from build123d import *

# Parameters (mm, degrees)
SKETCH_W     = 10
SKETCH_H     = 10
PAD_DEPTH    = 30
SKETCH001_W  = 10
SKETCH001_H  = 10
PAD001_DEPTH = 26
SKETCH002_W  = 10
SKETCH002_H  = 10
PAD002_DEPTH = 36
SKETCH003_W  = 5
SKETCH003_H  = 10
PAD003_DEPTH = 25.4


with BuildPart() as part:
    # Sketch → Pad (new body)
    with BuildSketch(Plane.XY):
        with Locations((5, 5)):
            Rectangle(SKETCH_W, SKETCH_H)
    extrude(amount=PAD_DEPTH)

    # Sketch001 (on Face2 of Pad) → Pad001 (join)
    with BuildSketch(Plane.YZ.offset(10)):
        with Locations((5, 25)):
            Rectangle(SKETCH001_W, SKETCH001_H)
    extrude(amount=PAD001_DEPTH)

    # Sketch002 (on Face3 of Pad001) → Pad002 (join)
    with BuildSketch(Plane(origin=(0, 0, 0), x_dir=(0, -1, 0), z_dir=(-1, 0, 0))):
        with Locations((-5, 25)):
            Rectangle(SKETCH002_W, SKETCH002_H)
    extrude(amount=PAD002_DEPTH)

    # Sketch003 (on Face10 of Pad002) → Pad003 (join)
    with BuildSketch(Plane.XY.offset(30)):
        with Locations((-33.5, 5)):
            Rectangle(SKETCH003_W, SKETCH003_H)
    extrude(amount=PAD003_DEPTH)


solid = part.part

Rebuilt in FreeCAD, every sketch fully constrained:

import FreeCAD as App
import Part
import Sketcher
from FreeCAD import Vector

doc = App.newDocument("Part")
body = doc.addObject("PartDesign::Body", "Body")

sketch1 = body.newObject("Sketcher::SketchObject", "Sketch")
sketch1.AttachmentSupport = (doc.getObject("XY_Plane"), [""])
sketch1.MapMode = "FlatFace"
sketch1.addGeometry(Part.LineSegment(Vector(0, 10, 0), Vector(0, 0, 0)), False)
sketch1.addGeometry(Part.LineSegment(Vector(0, 0, 0), Vector(10, 0, 0)), False)
sketch1.addGeometry(Part.LineSegment(Vector(10, 0, 0), Vector(10, 10, 0)), False)
sketch1.addGeometry(Part.LineSegment(Vector(10, 10, 0), Vector(0, 10, 0)), False)
sketch1.addConstraint(Sketcher.Constraint("Coincident", 0, 2, 1, 1))
sketch1.addConstraint(Sketcher.Constraint("Coincident", 1, 2, 2, 1))
sketch1.addConstraint(Sketcher.Constraint("Coincident", 2, 2, 3, 1))
sketch1.addConstraint(Sketcher.Constraint("Coincident", 3, 2, 0, 1))
sketch1.addConstraint(Sketcher.Constraint("Vertical", 0))
sketch1.addConstraint(Sketcher.Constraint("Horizontal", 1))
sketch1.addConstraint(Sketcher.Constraint("Vertical", 2))
sketch1.addConstraint(Sketcher.Constraint("Horizontal", 3))
sketch1.addConstraint(Sketcher.Constraint("Coincident", 0, 2, -1, 1))
sketch1.addConstraint(Sketcher.Constraint("Equal", 3, 0))
sketch1.addConstraint(Sketcher.Constraint("DistanceX", 1, 1, 1, 2, 10.0))
pad1 = body.newObject("PartDesign::Pad", "Pad")
pad1.Profile = sketch1
pad1.Length = 30

sketch2 = body.newObject("Sketcher::SketchObject", "Sketch001")
sketch2.AttachmentSupport = (doc.getObject("YZ_Plane"), [""])
sketch2.MapMode = "FlatFace"
sketch2.AttachmentOffset = App.Placement(Vector(0, 0, 10), App.Rotation())
sketch2.addGeometry(Part.LineSegment(Vector(0, 30, 0), Vector(0, 20, 0)), False)
sketch2.addGeometry(Part.LineSegment(Vector(0, 20, 0), Vector(10, 20, 0)), False)
sketch2.addGeometry(Part.LineSegment(Vector(10, 20, 0), Vector(10, 30, 0)), False)
sketch2.addGeometry(Part.LineSegment(Vector(10, 30, 0), Vector(0, 30, 0)), False)
sketch2.addConstraint(Sketcher.Constraint("Coincident", 0, 2, 1, 1))
sketch2.addConstraint(Sketcher.Constraint("Coincident", 1, 2, 2, 1))
sketch2.addConstraint(Sketcher.Constraint("Coincident", 2, 2, 3, 1))
sketch2.addConstraint(Sketcher.Constraint("Coincident", 3, 2, 0, 1))
sketch2.addConstraint(Sketcher.Constraint("Vertical", 0))
sketch2.addConstraint(Sketcher.Constraint("Horizontal", 1))
sketch2.addConstraint(Sketcher.Constraint("Vertical", 2))
sketch2.addConstraint(Sketcher.Constraint("Horizontal", 3))
sketch2.addConstraint(Sketcher.Constraint("PointOnObject", 0, 2, -2))
sketch2.addConstraint(Sketcher.Constraint("Equal", 3, 0))
sketch2.addConstraint(Sketcher.Constraint("DistanceX", 1, 1, 1, 2, 10.0))
sketch2.addConstraint(Sketcher.Constraint("DistanceY", -1, 1, 0, 2, 20.0))
pad2 = body.newObject("PartDesign::Pad", "Pad001")
pad2.Profile = sketch2
pad2.Length = 26

sketch3 = body.newObject("Sketcher::SketchObject", "Sketch002")
sketch3.AttachmentSupport = (doc.getObject("YZ_Plane"), [""])
sketch3.MapMode = "FlatFace"
sketch3.addGeometry(Part.LineSegment(Vector(10, 30, 0), Vector(10, 20, 0)), False)
sketch3.addGeometry(Part.LineSegment(Vector(10, 20, 0), Vector(0, 20, 0)), False)
sketch3.addGeometry(Part.LineSegment(Vector(0, 20, 0), Vector(0, 30, 0)), False)
sketch3.addGeometry(Part.LineSegment(Vector(0, 30, 0), Vector(10, 30, 0)), False)
sketch3.addConstraint(Sketcher.Constraint("Coincident", 0, 2, 1, 1))
sketch3.addConstraint(Sketcher.Constraint("Coincident", 1, 2, 2, 1))
sketch3.addConstraint(Sketcher.Constraint("Coincident", 2, 2, 3, 1))
sketch3.addConstraint(Sketcher.Constraint("Coincident", 3, 2, 0, 1))
sketch3.addConstraint(Sketcher.Constraint("Vertical", 0))
sketch3.addConstraint(Sketcher.Constraint("Horizontal", 1))
sketch3.addConstraint(Sketcher.Constraint("Vertical", 2))
sketch3.addConstraint(Sketcher.Constraint("Horizontal", 3))
sketch3.addConstraint(Sketcher.Constraint("PointOnObject", 1, 2, -2))
sketch3.addConstraint(Sketcher.Constraint("Equal", 3, 0))
sketch3.addConstraint(Sketcher.Constraint("DistanceX", 1, 2, 1, 1, 10.0))
sketch3.addConstraint(Sketcher.Constraint("DistanceY", -1, 1, 0, 2, 20.0))
pad3 = body.newObject("PartDesign::Pad", "Pad002")
pad3.Profile = sketch3
pad3.Length = 36
pad3.Reversed = True

sketch4 = body.newObject("Sketcher::SketchObject", "Sketch003")
sketch4.AttachmentSupport = (doc.getObject("XY_Plane"), [""])
sketch4.MapMode = "FlatFace"
sketch4.AttachmentOffset = App.Placement(Vector(0, 0, 30), App.Rotation())
sketch4.addGeometry(Part.LineSegment(Vector(-36, 10, 0), Vector(-36, 0, 0)), False)
sketch4.addGeometry(Part.LineSegment(Vector(-36, 0, 0), Vector(-31, 0, 0)), False)
sketch4.addGeometry(Part.LineSegment(Vector(-31, 0, 0), Vector(-31, 10, 0)), False)
sketch4.addGeometry(Part.LineSegment(Vector(-31, 10, 0), Vector(-36, 10, 0)), False)
sketch4.addConstraint(Sketcher.Constraint("Coincident", 0, 2, 1, 1))
sketch4.addConstraint(Sketcher.Constraint("Coincident", 1, 2, 2, 1))
sketch4.addConstraint(Sketcher.Constraint("Coincident", 2, 2, 3, 1))
sketch4.addConstraint(Sketcher.Constraint("Coincident", 3, 2, 0, 1))
sketch4.addConstraint(Sketcher.Constraint("Vertical", 0))
sketch4.addConstraint(Sketcher.Constraint("Horizontal", 1))
sketch4.addConstraint(Sketcher.Constraint("Vertical", 2))
sketch4.addConstraint(Sketcher.Constraint("Horizontal", 3))
sketch4.addConstraint(Sketcher.Constraint("PointOnObject", 0, 2, -1))
sketch4.addConstraint(Sketcher.Constraint("DistanceX", 1, 1, 1, 2, 5.0))
sketch4.addConstraint(Sketcher.Constraint("DistanceY", 0, 2, 0, 1, 10.0))
sketch4.addConstraint(Sketcher.Constraint("DistanceX", 0, 2, -1, 1, 36.0))
pad4 = body.newObject("PartDesign::Pad", "Pad003")
pad4.Profile = sketch4
pad4.Length = 25.4

doc.recompute()
